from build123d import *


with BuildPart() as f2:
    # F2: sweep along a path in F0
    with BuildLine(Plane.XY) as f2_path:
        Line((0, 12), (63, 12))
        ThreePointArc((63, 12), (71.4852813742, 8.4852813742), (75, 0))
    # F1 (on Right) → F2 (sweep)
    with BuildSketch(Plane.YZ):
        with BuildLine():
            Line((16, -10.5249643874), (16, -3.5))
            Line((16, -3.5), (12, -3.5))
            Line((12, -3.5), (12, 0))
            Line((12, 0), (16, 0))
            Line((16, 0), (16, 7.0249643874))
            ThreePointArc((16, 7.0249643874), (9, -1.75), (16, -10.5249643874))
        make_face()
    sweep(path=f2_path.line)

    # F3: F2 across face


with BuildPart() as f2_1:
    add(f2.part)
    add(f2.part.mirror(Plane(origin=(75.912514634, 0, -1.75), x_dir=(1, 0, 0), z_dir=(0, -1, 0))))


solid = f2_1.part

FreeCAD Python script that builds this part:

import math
import FreeCAD as App
import Part
import Sketcher

doc = App.newDocument("Part")
body = doc.addObject("PartDesign::Body", "Body")

# Sketch on YZ plane
sketch1 = body.newObject("Sketcher::SketchObject", "Sketch")
sketch1.AttachmentSupport = (doc.getObject("YZ_Plane"), [""])
sketch1.MapMode = "FlatFace"
sketch1.addGeometry([
    Part.LineSegment(App.Vector(16, -10.524964, 0), App.Vector(16, -3.5, 0)),  # 0
    Part.LineSegment(App.Vector(16, -3.5, 0), App.Vector(12, -3.5, 0)),  # 1
    Part.LineSegment(App.Vector(12, -3.5, 0), App.Vector(12, 0, 0)),  # 2
    Part.LineSegment(App.Vector(12, 0, 0), App.Vector(16, 0, 0)),  # 3
    Part.LineSegment(App.Vector(16, 0, 0), App.Vector(16, 7.024964, 0)),  # 4
    Part.ArcOfCircle(Part.Circle(App.Vector(18, -1.75, 0), App.Vector(0, 0, 1), 9), math.radians(102.839588), math.radians(257.160412)),  # 5
], False)
sketch1.addConstraint([
    Sketcher.Constraint("Coincident", 0, 2, 1, 1),
    Sketcher.Constraint("Coincident", 1, 2, 2, 1),
    Sketcher.Constraint("Coincident", 2, 2, 3, 1),
    Sketcher.Constraint("Coincident", 3, 2, 4, 1),
    Sketcher.Constraint("Coincident", 4, 2, 5, 1),
    Sketcher.Constraint("Coincident", 5, 2, 0, 1),
    Sketcher.Constraint("Vertical", 0),
    Sketcher.Constraint("Horizontal", 1),
    Sketcher.Constraint("Vertical", 2),
    Sketcher.Constraint("Horizontal", 3),
    Sketcher.Constraint("Vertical", 4),
    Sketcher.Constraint("PointOnObject", 2, 2, -1),
    Sketcher.Constraint("Vertical", 0, 2, 3, 2),
    Sketcher.Constraint("Equal", 0, 4),
    Sketcher.Constraint("Radius", 5, 9.0),
    Sketcher.Constraint("DistanceX", 1, 2, 1, 1, 4.0),
    Sketcher.Constraint("DistanceY", 2, 1, 2, 2, 3.5),
    Sketcher.Constraint("DistanceX", -1, 1, 5, 3, 18.0),
    Sketcher.Constraint("DistanceX", -1, 1, 0, 2, 16.0),
])

# Sketch on XY plane
sketch2 = body.newObject("Sketcher::SketchObject", "Sketch001")
sketch2.AttachmentSupport = (doc.getObject("XY_Plane"), [""])
sketch2.MapMode = "FlatFace"
sketch2.addGeometry([
    Part.LineSegment(App.Vector(0, 12, 0), App.Vector(63, 12, 0)),
    Part.ArcOfCircle(Part.Circle(App.Vector(63, 0, 0), App.Vector(0, 0, 1), 12), math.radians(0), math.radians(90)),
], False)
sketch2.addConstraint([
    Sketcher.Constraint("Tangent", 0, 2, 1, 2),
    Sketcher.Constraint("Horizontal", 0),
    Sketcher.Constraint("PointOnObject", 1, 3, -1),
    Sketcher.Constraint("PointOnObject", 0, 1, -2),
    Sketcher.Constraint("PointOnObject", 1, 1, -1),
    Sketcher.Constraint("Radius", 1, 12.0),
    Sketcher.Constraint("DistanceX", 0, 1, 0, 2, 63.0),
])
doc.recompute()

additivepipe = body.newObject("PartDesign::AdditivePipe", "AdditivePipe")
additivepipe.Profile = sketch1
additivepipe.Spine = (sketch2, ["Edge1", "Edge2"])
body2 = doc.addObject("PartDesign::Body", "Body001")
doc.recompute()

body2.BaseFeature = body
doc.recompute()

mirroring = doc.addObject("Part::Mirroring", "Mirroring")
mirroring.Source = body
mirroring.Base = App.Vector(75.912515, 0, -1.75)
mirroring.Normal = App.Vector(0, -1, 0)
body3 = doc.addObject("PartDesign::Body", "Body002")
body3.BaseFeature = mirroring
boolean = body2.newObject("PartDesign::Boolean", "Boolean")
boolean.Type = "Fuse"
boolean.addObjects([body3])
doc.recompute()
mirroring.Visibility = False

doc.recompute()
